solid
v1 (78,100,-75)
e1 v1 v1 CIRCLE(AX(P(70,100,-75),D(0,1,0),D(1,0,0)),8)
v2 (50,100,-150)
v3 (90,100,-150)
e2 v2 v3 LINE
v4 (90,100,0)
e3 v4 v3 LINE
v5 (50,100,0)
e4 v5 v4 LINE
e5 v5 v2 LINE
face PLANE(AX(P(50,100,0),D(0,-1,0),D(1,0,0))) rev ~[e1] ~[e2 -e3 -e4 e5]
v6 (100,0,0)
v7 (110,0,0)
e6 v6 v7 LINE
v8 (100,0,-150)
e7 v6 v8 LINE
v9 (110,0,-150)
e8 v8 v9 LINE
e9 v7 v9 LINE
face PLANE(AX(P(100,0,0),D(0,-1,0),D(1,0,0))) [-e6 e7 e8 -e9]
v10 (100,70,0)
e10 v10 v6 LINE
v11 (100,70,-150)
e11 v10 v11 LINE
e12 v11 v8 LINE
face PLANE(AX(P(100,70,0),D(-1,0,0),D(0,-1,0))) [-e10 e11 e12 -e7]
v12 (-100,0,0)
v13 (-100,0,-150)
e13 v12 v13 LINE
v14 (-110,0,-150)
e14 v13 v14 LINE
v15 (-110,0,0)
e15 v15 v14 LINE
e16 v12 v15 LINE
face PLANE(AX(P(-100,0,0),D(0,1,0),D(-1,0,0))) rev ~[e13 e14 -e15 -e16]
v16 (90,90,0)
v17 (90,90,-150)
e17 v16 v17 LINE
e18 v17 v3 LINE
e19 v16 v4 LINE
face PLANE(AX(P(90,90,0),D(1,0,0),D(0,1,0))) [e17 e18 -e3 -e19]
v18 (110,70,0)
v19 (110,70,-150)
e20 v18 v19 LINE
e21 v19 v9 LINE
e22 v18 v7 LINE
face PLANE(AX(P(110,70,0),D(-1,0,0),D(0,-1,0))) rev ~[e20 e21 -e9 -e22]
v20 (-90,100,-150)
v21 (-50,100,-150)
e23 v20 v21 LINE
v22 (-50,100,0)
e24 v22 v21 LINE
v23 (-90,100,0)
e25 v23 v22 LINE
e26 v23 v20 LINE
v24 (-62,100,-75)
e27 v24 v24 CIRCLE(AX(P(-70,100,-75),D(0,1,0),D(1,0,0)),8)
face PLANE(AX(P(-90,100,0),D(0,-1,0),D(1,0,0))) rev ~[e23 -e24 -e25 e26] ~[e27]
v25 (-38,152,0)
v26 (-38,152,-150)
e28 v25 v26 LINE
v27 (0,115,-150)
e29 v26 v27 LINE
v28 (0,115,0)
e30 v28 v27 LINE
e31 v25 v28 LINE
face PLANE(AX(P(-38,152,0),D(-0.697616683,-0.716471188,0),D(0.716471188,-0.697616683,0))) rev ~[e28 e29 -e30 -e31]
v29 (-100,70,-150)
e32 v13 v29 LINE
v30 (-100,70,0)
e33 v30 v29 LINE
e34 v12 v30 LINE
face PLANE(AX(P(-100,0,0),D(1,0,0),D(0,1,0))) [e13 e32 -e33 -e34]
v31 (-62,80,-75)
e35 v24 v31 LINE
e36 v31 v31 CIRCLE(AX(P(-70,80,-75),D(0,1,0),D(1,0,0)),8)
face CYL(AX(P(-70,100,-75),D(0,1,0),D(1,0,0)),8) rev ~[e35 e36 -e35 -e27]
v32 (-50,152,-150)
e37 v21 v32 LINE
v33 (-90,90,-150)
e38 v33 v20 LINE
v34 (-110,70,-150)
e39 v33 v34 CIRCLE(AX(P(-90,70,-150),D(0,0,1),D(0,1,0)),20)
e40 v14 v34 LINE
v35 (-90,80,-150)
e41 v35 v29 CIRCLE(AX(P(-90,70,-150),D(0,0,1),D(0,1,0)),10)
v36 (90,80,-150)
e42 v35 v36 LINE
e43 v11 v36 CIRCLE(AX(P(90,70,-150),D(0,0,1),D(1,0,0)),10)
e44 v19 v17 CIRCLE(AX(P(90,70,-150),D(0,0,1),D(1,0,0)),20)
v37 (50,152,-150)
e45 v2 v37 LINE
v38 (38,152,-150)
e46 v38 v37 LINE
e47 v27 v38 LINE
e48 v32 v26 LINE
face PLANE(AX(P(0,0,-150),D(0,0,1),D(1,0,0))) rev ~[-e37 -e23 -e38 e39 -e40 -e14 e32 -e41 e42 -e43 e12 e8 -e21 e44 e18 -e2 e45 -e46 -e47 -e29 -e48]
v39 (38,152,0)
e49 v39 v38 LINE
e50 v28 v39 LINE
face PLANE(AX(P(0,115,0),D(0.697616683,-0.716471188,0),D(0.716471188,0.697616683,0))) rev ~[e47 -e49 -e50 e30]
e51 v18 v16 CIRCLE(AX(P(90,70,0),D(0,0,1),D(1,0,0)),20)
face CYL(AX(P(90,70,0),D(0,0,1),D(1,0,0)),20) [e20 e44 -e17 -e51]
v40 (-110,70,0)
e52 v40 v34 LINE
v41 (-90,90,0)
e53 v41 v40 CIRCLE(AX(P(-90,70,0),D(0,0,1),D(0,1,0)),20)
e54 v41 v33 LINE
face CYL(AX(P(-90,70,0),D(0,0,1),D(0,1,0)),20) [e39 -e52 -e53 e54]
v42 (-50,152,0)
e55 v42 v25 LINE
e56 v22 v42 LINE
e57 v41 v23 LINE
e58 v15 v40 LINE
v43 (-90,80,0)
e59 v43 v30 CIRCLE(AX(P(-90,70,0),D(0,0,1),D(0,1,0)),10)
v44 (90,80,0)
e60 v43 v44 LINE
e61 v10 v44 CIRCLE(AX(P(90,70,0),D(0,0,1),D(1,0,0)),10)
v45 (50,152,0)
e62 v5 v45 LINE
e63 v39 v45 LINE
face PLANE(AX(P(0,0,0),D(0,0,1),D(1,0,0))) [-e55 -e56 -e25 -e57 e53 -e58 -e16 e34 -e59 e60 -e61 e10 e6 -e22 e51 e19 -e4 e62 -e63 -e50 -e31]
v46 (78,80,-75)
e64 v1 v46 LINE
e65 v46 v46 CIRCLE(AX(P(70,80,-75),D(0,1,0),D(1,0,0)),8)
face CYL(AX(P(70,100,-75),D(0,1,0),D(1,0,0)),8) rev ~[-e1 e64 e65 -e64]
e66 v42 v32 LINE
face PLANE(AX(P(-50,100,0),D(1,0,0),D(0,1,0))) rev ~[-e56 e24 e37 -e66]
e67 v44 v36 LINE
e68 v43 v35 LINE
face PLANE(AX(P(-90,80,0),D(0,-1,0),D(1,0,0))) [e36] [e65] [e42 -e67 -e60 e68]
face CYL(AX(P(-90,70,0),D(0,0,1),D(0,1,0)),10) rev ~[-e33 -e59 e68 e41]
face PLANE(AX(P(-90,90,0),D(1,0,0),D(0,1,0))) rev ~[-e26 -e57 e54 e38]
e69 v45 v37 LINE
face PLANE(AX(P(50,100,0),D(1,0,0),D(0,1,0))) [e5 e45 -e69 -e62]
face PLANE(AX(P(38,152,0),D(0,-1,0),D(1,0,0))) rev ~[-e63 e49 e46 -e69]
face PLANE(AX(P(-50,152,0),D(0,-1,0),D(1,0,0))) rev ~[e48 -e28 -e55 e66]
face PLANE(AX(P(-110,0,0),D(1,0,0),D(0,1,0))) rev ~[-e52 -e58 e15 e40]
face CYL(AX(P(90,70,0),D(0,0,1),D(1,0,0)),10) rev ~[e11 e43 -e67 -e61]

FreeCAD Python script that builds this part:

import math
import FreeCAD as App
import Part
import Sketcher

doc = App.newDocument("Part")
body = doc.addObject("PartDesign::Body", "Body")

sketch1 = doc.addObject("Sketcher::SketchObject", "Sketch")
body.addObject(sketch1)
sketch1.AttachmentSupport = (doc.XY_Plane, [""])
sketch1.MapMode = "FlatFace"
sketch1.addGeometry([
    Part.LineSegment(App.Vector(-110, 0, 0), App.Vector(-100, 0, 0)),
    Part.LineSegment(App.Vector(-100, 0, 0), App.Vector(-100, 70, 0)),
    Part.ArcOfCircle(Part.Circle(App.Vector(-90, 70, 0), App.Vector(0, 0, 1), 10), math.radians(90), math.radians(180)),
    Part.LineSegment(App.Vector(-90, 80, 0), App.Vector(90, 80, 0)),
    Part.ArcOfCircle(Part.Circle(App.Vector(90, 70, 0), App.Vector(0, 0, 1), 10), math.radians(0), math.radians(90)),
    Part.LineSegment(App.Vector(100, 70, 0), App.Vector(100, 0, 0)),
    Part.LineSegment(App.Vector(100, 0, 0), App.Vector(110, 0, 0)),
    Part.LineSegment(App.Vector(110, 0, 0), App.Vector(110, 70, 0)),
    Part.ArcOfCircle(Part.Circle(App.Vector(90, 70, 0), App.Vector(0, 0, 1), 20), math.radians(0), math.radians(90)),
    Part.LineSegment(App.Vector(90, 90, 0), App.Vector(90, 100, 0)),
    Part.LineSegment(App.Vector(90, 100, 0), App.Vector(50, 100, 0)),
    Part.LineSegment(App.Vector(50, 100, 0), App.Vector(50, 152, 0)),
    Part.LineSegment(App.Vector(50, 152, 0), App.Vector(38, 152, 0)),
    Part.LineSegment(App.Vector(38, 152, 0), App.Vector(0, 115, 0)),
    Part.LineSegment(App.Vector(0, 115, 0), App.Vector(-38, 152, 0)),
    Part.LineSegment(App.Vector(-38, 152, 0), App.Vector(-50, 152, 0)),
    Part.LineSegment(App.Vector(-50, 152, 0), App.Vector(-50, 100, 0)),
    Part.LineSegment(App.Vector(-50, 100, 0), App.Vector(-90, 100, 0)),
    Part.LineSegment(App.Vector(-90, 100, 0), App.Vector(-90, 90, 0)),
    Part.ArcOfCircle(Part.Circle(App.Vector(-90, 70, 0), App.Vector(0, 0, 1), 20), math.radians(90), math.radians(180)),
    Part.LineSegment(App.Vector(-110, 70, 0), App.Vector(-110, 0, 0)),
], False)
sketch1.addConstraint([
    Sketcher.Constraint("Coincident", 0, 2, 1, 1),
    Sketcher.Constraint("Tangent", 1, 2, 2, 2),
    Sketcher.Constraint("Tangent", 2, 1, 3, 1),
    Sketcher.Constraint("Tangent", 3, 2, 4, 2),
    Sketcher.Constraint("Tangent", 4, 1, 5, 1),
    Sketcher.Constraint("Coincident", 5, 2, 6, 1),
    Sketcher.Constraint("Coincident", 6, 2, 7, 1),
    Sketcher.Constraint("Tangent", 7, 2, 8, 1),
    Sketcher.Constraint("Coincident", 8, 2, 9, 1),
    Sketcher.Constraint("Coincident", 9, 2, 10, 1),
    Sketcher.Constraint("Coincident", 10, 2, 11, 1),
    Sketcher.Constraint("Coincident", 11, 2, 12, 1),
    Sketcher.Constraint("Coincident", 12, 2, 13, 1),
    Sketcher.Constraint("Coincident", 13, 2, 14, 1),
    Sketcher.Constraint("Coincident", 14, 2, 15, 1),
    Sketcher.Constraint("Coincident", 15, 2, 16, 1),
    Sketcher.Constraint("Coincident", 16, 2, 17, 1),
    Sketcher.Constraint("Coincident", 17, 2, 18, 1),
    Sketcher.Constraint("Coincident", 18, 2, 19, 1),
    Sketcher.Constraint("Tangent", 19, 2, 20, 1),
    Sketcher.Constraint("Coincident", 20, 2, 0, 1),
    Sketcher.Constraint("Horizontal", 0),
    Sketcher.Constraint("Vertical", 1),
    Sketcher.Constraint("Horizontal", 3),
    Sketcher.Constraint("Vertical", 5),
    Sketcher.Constraint("Horizontal", 6),
    Sketcher.Constraint("Vertical", 7),
    Sketcher.Constraint("Vertical", 9),
    Sketcher.Constraint("Horizontal", 10),
    Sketcher.Constraint("Vertical", 11),
    Sketcher.Constraint("Horizontal", 12),
    Sketcher.Constraint("Horizontal", 15),
    Sketcher.Constraint("Vertical", 16),
    Sketcher.Constraint("Horizontal", 17),
    Sketcher.Constraint("Vertical", 18),
    Sketcher.Constraint("Vertical", 20),
    Sketcher.Constraint("Coincident", 8, 3, 4, 3),
    Sketcher.Constraint("Coincident", 19, 3, 2, 3),
    Sketcher.Constraint("Equal", 2, 4),
    Sketcher.Constraint("Equal", 8, 19),
    Sketcher.Constraint("Symmetric", 0, 2, 5, 2, -1, 1),
    Sketcher.Constraint("Symmetric", 12, 2, 14, 2, -2),
    Sketcher.Constraint("Symmetric", 10, 2, 16, 2, -2),
    Sketcher.Constraint("PointOnObject", 0, 2, -1),
    Sketcher.Constraint("PointOnObject", 13, 2, -2),
    Sketcher.Constraint("Vertical", 3, 2, 8, 2),
    Sketcher.Constraint("Vertical", 2, 1, 17, 2),
    Sketcher.Constraint("Equal", 6, 9),
    Sketcher.Constraint("Radius", 2, 10.0),
    Sketcher.Constraint("Radius", 8, 20.0),
    Sketcher.Constraint("DistanceX", 12, 2, 12, 1, 12.0),
    Sketcher.Constraint("DistanceY", 11, 1, 11, 2, 52.0),
    Sketcher.Constraint("DistanceX", 0, 2, -1, 1, 100.0),
    Sketcher.Constraint("DistanceY", -1, 1, 2, 1, 80.0),
    Sketcher.Constraint("DistanceX", -1, 1, 10, 2, 50.0),
    Sketcher.Constraint("DistanceY", 10, 2, 13, 2, 15.0),
])
pad1 = doc.addObject("PartDesign::Pad", "Pad")
body.addObject(pad1)
pad1.Profile = sketch1
pad1.Length = 150
pad1.Reversed = True

sketch2 = doc.addObject("Sketcher::SketchObject", "Sketch001")
body.addObject(sketch2)
sketch2.AttachmentSupport = (doc.XZ_Plane, [""])
sketch2.MapMode = "FlatFace"
sketch2.AttachmentOffset = App.Placement(App.Vector(0, 0, -100), App.Rotation())
sketch2.addGeometry([
    Part.Circle(App.Vector(-70, -75, 0), App.Vector(0, 0, 1), 8),
    Part.Circle(App.Vector(70, -75, 0), App.Vector(0, 0, 1), 8),
], False)
sketch2.addConstraint([
    Sketcher.Constraint("Equal", 0, 1),
    Sketcher.Constraint("Symmetric", 0, 3, 1, 3, -2),
    Sketcher.Constraint("Diameter", 0, 16.0),
    Sketcher.Constraint("DistanceY", 0, 3, -1, 1, 75.0),
    Sketcher.Constraint("DistanceX", 0, 3, -1, 1, 70.0),
])
pocket1 = doc.addObject("PartDesign::Pocket", "Pocket")
body.addObject(pocket1)
pocket1.Profile = sketch2
pocket1.Length = 50
pocket1.Reversed = True

doc.recompute()
